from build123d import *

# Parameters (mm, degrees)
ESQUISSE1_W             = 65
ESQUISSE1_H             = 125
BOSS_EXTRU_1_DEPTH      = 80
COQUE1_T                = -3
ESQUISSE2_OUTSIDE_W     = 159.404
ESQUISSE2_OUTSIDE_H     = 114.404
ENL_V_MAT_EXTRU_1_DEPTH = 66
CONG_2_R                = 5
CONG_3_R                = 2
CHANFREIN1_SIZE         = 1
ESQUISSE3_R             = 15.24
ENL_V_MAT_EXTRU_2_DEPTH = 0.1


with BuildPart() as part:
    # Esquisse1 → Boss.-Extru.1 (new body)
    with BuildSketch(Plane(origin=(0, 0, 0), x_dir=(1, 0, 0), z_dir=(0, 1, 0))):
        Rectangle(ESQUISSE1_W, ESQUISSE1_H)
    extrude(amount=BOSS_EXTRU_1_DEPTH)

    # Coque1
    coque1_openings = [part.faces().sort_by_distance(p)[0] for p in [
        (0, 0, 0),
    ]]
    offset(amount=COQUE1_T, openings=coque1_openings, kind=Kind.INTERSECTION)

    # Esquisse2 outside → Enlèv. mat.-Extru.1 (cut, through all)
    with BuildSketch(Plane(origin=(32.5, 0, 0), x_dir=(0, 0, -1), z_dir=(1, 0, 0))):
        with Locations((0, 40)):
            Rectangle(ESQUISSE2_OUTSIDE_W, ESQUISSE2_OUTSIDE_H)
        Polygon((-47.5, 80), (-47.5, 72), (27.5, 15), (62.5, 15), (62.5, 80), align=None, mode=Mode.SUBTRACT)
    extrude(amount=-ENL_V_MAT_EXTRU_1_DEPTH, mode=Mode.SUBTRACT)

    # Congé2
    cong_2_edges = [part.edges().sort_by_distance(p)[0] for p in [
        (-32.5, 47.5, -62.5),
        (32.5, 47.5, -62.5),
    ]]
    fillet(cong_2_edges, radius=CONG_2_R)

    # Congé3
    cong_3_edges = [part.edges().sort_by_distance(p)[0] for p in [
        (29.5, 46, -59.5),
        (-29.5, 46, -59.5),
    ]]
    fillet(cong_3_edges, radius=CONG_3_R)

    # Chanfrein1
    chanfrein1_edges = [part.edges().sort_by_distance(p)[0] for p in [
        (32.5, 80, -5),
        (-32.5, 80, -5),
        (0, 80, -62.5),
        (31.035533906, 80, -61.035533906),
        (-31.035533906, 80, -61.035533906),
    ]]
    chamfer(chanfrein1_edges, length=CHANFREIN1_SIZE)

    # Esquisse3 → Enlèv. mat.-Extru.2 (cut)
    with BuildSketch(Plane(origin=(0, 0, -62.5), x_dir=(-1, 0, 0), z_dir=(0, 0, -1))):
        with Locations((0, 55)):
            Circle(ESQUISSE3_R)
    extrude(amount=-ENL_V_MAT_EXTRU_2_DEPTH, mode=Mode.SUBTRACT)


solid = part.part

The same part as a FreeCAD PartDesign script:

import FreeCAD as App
import Part
import Sketcher

V = App.Vector
Q = App.Units.Quantity


def edges_at(feature, points):
    """Names of the edges that pass closest to the given points."""
    edges = feature.Shape.Edges
    near = lambda p: min(range(len(edges)), key=lambda i: edges[i].distToShape(Part.Vertex(*p))[0])
    return sorted({f"Edge{near(p) + 1}" for p in points})


def faces_at(feature, points):
    """Names of the faces that lie closest to the given points."""
    faces = feature.Shape.Faces
    near = lambda p: min(range(len(faces)), key=lambda i: faces[i].distToShape(Part.Vertex(*p))[0])
    return sorted({f"Face{near(p) + 1}" for p in points})

doc = App.newDocument("Part")
body = doc.addObject("PartDesign::Body", "Body")

# Sketch on XZ plane
sketch1 = body.newObject("Sketcher::SketchObject", "Sketch")
sketch1.AttachmentSupport = (doc.getObject("XZ_Plane"), [""])
sketch1.MapMode = "FlatFace"
sketch1.addGeometry([
    Part.LineSegment(V(-32, -62, 0), V(-32, 62, 0)),
    Part.LineSegment(V(-32, 62, 0), V(32, 62, 0)),
    Part.LineSegment(V(32, 62, 0), V(32, -62, 0)),
    Part.LineSegment(V(32, -62, 0), V(-32, -62, 0)),
], False)
sketch1.addConstraint([
    Sketcher.Constraint("Coincident", 0, 2, 1, 1),
    Sketcher.Constraint("Coincident", 1, 2, 2, 1),
    Sketcher.Constraint("Coincident", 2, 2, 3, 1),
    Sketcher.Constraint("Coincident", 3, 2, 0, 1),
    Sketcher.Constraint("Vertical", 0),
    Sketcher.Constraint("Horizontal", 1),
    Sketcher.Constraint("Vertical", 2),
    Sketcher.Constraint("Horizontal", 3),
    Sketcher.Constraint("Symmetric", 0, 2, 2, 2, -1, 1),
    Sketcher.Constraint("DistanceX", 1, 1, 1, 2, Q("65 mm")),
    Sketcher.Constraint("DistanceY", 0, 1, 0, 2, Q("125 mm")),
])
pad1 = body.newObject("PartDesign::Pad", "Pad")
pad1.Profile = sketch1
pad1.Length = 80
pad1.Reversed = True
doc.recompute()

thickness = body.newObject("PartDesign::Thickness", "Thickness")
thickness.Base = (pad1, faces_at(pad1, [(0, 0, 0)]))
thickness.Value = 3
thickness.Reversed = True
thickness.Join = "Intersection"

# Sketch on YZ plane
sketch2 = body.newObject("Sketcher::SketchObject", "Sketch001")
sketch2.AttachmentSupport = (doc.getObject("YZ_Plane"), [""])
sketch2.MapMode = "FlatFace"
sketch2.AttachmentOffset = App.Placement(V(0, 0, 32.5), App.Rotation())
sketch2.addGeometry([
    Part.LineSegment(V(97, 80, 0), V(-17, 80, 0)),  # 0
    Part.LineSegment(V(-17, 80, 0), V(-17, -80, 0)),  # 1
    Part.LineSegment(V(-17, -80, 0), V(97, -80, 0)),  # 2
    Part.LineSegment(V(97, -80, 0), V(97, 80, 0)),  # 3
    Part.LineSegment(V(72, 48, 0), V(80, 48, 0)),  # 4
    Part.LineSegment(V(80, 48, 0), V(80, -62, 0)),  # 5
    Part.LineSegment(V(80, -62, 0), V(15, -62, 0)),  # 6
    Part.LineSegment(V(15, -62, 0), V(15, -28, 0)),  # 7
    Part.LineSegment(V(15, -28, 0), V(72, 48, 0)),  # 8
], False)
sketch2.addConstraint([
    Sketcher.Constraint("Coincident", 0, 2, 1, 1),
    Sketcher.Constraint("Coincident", 1, 2, 2, 1),
    Sketcher.Constraint("Coincident", 2, 2, 3, 1),
    Sketcher.Constraint("Coincident", 3, 2, 0, 1),
    Sketcher.Constraint("Coincident", 4, 2, 5, 1),
    Sketcher.Constraint("Coincident", 5, 2, 6, 1),
    Sketcher.Constraint("Coincident", 6, 2, 7, 1),
    Sketcher.Constraint("Coincident", 7, 2, 8, 1),
    Sketcher.Constraint("Coincident", 8, 2, 4, 1),
    Sketcher.Constraint("Horizontal", 0),
    Sketcher.Constraint("Vertical", 1),
    Sketcher.Constraint("Horizontal", 2),
    Sketcher.Constraint("Vertical", 3),
    Sketcher.Constraint("Horizontal", 4),
    Sketcher.Constraint("Vertical", 5),
    Sketcher.Constraint("Horizontal", 6),
    Sketcher.Constraint("Vertical", 7),
    Sketcher.Constraint("DistanceX", 4, 1, 4, 2, Q("8 mm")),
    Sketcher.Constraint("DistanceX", 6, 2, 6, 1, Q("65 mm")),
    Sketcher.Constraint("DistanceY", 5, 2, 5, 1, Q("110 mm")),
    Sketcher.Constraint("DistanceY", 7, 1, 7, 2, Q("35 mm")),
    Sketcher.Constraint("DistanceX", -1, 1, 4, 2, Q("80 mm")),
    Sketcher.Constraint("DistanceY", -1, 1, 4, 2, Q("47.5 mm")),
    Sketcher.Constraint("DistanceX", 0, 2, 0, 1, Q("114.404 mm")),
    Sketcher.Constraint("DistanceY", 1, 2, 1, 1, Q("159.404 mm")),
    Sketcher.Constraint("DistanceX", 0, 2, -1, 1, Q("17.202 mm")),
    Sketcher.Constraint("DistanceY", -1, 1, 0, 2, Q("79.702 mm")),
])
pocket1 = body.newObject("PartDesign::Pocket", "Pocket")
pocket1.Profile = sketch2
pocket1.Type = "ThroughAll"
doc.recompute()

fillet = body.newObject("PartDesign::Fillet", "Fillet")
fillet.Base = (pocket1, edges_at(pocket1, [(-32.5, 47.5, -62.5), (32.5, 47.5, -62.5)]))
fillet.Radius = 5
doc.recompute()

fillet2 = body.newObject("PartDesign::Fillet", "Fillet001")
fillet2.Base = (fillet, edges_at(fillet, [(29.5, 46, -59.5), (-29.5, 46, -59.5)]))
fillet2.Radius = 2
doc.recompute()

chamfer = body.newObject("PartDesign::Chamfer", "Chamfer")
chamfer.Base = (fillet2, edges_at(fillet2, [
    (32.5, 80, -5),
    (-32.5, 80, -5),
    (0, 80, -62.5),
    (31.036, 80, -61.036),
    (-31.036, 80, -61.036),
]))
chamfer.Size = 1

# Sketch on XY plane
sketch3 = body.newObject("Sketcher::SketchObject", "Sketch002")
sketch3.AttachmentSupport = (doc.getObject("XY_Plane"), [""])
sketch3.MapMode = "FlatFace"
sketch3.AttachmentOffset = App.Placement(V(0, 0, -62.5), App.Rotation())
sketch3.addGeometry(Part.Circle(V(0, 55, 0), V(0, 0, 1), 15), False)
sketch3.addConstraint([
    Sketcher.Constraint("PointOnObject", 0, 3, -2),
    Sketcher.Constraint("Diameter", 0, Q("30.48 mm")),
    Sketcher.Constraint("DistanceY", -1, 1, 0, 3, Q("55 mm")),
])
pocket2 = body.newObject("PartDesign::Pocket", "Pocket001")
pocket2.Profile = sketch3
pocket2.Length = 0.1
pocket2.Reversed = True

doc.recompute()
